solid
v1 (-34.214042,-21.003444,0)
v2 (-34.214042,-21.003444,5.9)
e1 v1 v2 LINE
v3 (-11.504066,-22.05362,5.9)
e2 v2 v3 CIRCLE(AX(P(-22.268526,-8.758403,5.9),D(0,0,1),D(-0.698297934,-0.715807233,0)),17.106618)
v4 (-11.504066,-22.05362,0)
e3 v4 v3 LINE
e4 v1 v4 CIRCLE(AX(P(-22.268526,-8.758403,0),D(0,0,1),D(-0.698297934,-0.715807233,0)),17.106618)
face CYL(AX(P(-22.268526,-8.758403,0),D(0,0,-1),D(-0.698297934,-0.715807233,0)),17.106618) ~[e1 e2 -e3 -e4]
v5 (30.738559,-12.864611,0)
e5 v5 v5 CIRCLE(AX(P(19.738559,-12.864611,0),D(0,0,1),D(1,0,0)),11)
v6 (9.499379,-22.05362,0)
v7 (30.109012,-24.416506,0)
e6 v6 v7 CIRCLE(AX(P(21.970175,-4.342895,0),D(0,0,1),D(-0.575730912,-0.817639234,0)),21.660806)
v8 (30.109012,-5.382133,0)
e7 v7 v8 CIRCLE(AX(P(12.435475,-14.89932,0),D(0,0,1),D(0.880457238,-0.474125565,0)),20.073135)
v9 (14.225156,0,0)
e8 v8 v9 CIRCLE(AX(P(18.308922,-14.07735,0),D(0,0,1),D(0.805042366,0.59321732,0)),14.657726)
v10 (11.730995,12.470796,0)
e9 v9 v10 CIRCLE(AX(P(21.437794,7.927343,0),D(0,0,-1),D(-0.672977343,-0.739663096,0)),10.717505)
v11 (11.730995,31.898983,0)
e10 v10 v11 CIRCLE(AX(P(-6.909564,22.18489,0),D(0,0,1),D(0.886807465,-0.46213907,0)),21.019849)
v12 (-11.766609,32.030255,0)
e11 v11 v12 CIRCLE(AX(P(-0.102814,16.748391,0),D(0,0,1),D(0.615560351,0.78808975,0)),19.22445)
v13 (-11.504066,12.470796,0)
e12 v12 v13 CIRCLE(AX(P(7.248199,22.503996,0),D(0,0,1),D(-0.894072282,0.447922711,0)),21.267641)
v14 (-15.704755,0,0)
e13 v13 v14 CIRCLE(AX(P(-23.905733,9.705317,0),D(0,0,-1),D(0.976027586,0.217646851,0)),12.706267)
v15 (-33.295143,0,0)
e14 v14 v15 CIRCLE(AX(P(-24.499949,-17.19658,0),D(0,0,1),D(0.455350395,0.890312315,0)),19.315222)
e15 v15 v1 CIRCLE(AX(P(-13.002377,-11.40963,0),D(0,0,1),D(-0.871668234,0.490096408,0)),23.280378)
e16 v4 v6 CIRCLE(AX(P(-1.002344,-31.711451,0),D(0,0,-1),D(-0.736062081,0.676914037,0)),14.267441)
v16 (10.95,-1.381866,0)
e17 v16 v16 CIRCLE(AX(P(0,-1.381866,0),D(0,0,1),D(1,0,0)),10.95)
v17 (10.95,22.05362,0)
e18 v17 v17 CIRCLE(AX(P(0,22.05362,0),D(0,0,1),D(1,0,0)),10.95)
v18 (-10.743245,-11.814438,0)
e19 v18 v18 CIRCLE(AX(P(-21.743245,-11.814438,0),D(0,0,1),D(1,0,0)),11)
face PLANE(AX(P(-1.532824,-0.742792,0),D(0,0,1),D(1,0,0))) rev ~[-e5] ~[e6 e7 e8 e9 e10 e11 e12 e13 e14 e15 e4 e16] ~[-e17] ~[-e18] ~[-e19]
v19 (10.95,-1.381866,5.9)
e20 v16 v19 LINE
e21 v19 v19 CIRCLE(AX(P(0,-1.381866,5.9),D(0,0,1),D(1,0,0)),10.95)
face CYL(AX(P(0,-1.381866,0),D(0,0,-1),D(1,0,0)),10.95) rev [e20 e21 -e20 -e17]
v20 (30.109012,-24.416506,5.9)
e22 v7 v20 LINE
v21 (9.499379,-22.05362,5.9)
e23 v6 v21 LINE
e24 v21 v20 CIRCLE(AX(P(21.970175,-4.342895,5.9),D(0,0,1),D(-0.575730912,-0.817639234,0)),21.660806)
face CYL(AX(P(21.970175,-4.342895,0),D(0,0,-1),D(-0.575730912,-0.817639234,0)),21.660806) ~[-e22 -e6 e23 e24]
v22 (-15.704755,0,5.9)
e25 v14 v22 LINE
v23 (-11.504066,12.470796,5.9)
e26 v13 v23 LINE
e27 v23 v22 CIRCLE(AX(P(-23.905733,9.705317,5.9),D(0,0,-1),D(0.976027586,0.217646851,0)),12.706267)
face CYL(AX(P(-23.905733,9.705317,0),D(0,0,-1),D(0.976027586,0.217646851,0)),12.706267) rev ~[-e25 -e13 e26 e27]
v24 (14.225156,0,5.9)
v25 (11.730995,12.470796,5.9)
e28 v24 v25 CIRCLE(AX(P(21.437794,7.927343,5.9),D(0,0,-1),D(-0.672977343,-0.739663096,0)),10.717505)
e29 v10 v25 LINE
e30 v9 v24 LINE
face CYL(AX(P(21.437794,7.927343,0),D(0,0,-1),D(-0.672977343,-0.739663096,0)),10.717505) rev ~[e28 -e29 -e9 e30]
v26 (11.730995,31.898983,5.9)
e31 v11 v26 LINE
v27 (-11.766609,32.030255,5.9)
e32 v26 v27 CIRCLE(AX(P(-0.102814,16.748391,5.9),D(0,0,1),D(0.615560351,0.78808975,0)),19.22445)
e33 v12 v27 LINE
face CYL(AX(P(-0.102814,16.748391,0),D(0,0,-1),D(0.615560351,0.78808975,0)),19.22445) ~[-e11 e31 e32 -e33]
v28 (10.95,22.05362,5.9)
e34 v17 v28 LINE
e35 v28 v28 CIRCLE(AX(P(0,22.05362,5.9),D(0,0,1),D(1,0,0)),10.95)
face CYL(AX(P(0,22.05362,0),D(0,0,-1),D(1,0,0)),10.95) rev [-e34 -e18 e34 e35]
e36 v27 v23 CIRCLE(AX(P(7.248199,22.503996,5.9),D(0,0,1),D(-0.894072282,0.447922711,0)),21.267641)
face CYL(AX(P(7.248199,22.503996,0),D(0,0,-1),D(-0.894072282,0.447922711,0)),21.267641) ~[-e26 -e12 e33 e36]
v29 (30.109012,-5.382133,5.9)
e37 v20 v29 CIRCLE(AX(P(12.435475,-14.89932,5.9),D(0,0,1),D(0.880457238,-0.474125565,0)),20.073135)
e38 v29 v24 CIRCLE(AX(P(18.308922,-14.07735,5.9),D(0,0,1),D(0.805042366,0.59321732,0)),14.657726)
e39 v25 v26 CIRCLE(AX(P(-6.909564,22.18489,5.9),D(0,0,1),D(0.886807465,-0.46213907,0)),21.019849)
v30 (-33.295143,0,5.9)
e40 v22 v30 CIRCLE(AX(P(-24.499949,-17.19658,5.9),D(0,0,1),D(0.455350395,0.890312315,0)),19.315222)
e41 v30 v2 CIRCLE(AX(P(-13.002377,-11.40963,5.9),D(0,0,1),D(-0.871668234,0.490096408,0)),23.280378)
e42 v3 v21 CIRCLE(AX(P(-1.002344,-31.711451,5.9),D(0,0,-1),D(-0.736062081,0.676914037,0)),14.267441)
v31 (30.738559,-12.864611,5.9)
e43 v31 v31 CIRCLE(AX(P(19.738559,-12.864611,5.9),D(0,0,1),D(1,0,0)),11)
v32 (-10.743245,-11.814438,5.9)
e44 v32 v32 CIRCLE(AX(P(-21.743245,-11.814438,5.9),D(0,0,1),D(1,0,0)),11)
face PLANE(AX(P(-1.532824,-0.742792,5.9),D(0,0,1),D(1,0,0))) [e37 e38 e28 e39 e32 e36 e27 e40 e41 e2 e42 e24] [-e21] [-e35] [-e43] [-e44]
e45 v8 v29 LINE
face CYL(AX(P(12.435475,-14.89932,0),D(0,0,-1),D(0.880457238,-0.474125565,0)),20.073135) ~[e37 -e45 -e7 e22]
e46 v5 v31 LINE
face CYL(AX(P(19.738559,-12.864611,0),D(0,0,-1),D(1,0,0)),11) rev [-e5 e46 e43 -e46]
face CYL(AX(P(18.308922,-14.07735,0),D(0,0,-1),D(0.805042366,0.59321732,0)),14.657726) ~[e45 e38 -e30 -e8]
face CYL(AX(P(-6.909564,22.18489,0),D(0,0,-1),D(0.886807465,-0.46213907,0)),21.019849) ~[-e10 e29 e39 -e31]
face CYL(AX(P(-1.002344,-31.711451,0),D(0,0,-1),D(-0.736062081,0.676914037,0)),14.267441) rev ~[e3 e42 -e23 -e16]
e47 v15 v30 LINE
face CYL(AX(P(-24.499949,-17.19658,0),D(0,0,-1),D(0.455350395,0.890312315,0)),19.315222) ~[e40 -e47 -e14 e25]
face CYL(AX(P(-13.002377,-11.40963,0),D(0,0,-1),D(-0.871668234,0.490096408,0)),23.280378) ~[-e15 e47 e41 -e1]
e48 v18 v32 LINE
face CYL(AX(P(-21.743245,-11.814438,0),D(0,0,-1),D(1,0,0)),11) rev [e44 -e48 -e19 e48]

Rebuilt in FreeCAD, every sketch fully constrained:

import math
import FreeCAD as App
import Part
import Sketcher

V = App.Vector
Q = App.Units.Quantity

doc = App.newDocument("Part")
body = doc.addObject("PartDesign::Body", "Body")

sketch1 = doc.addObject("Sketcher::SketchObject", "Sketch")
body.addObject(sketch1)
sketch1.AttachmentSupport = (doc.XY_Plane, [""])
sketch1.MapMode = "FlatFace"
sketch1.addGeometry([
    Part.ArcOfCircle(Part.Circle(V(-6.909564, 22.18489, 0), V(0, 0, 1), 21.019849), math.radians(-27.525224), math.radians(27.525224)),
    Part.ArcOfCircle(Part.Circle(V(-0.102814, 16.748391, 0), V(0, 0, 1), 19.22445), math.radians(52.007352), math.radians(127.352476)),
    Part.ArcOfCircle(Part.Circle(V(7.248199, 22.503996, 0), V(0, 0, 1), 21.267641), math.radians(153.389515), math.radians(208.148534)),
    Part.ArcOfCircle(Part.Circle(V(-23.905733, 9.705317, 0), V(0, 0, 1), 12.706267), math.radians(-49.802241), math.radians(12.570859)),
    Part.ArcOfCircle(Part.Circle(V(-24.499949, -17.19658, 0), V(0, 0, 1), 19.315222), math.radians(62.912518), math.radians(117.087482)),
    Part.ArcOfCircle(Part.Circle(V(-13.002377, -11.40963, 0), V(0, 0, 1), 23.280378), math.radians(150.653082), math.radians(204.336742)),
    Part.ArcOfCircle(Part.Circle(V(-22.268526, -8.758403, 0), V(0, 0, 1), 17.106618), math.radians(-134.290606), math.radians(-51.004672)),
    Part.ArcOfCircle(Part.Circle(V(-1.002344, -31.711451, 0), V(0, 0, 1), 14.267441), math.radians(42.602963), math.radians(137.397037)),
    Part.ArcOfCircle(Part.Circle(V(21.970175, -4.342895, 0), V(0, 0, 1), 21.660806), math.radians(-125.150834), math.radians(-67.929927)),
    Part.ArcOfCircle(Part.Circle(V(12.435475, -14.89932, 0), V(0, 0, 1), 20.073135), math.radians(-28.302431), math.radians(28.302431)),
    Part.ArcOfCircle(Part.Circle(V(18.308922, -14.07735, 0), V(0, 0, 1), 14.657726), math.radians(36.385653), math.radians(106.177169)),
    Part.ArcOfCircle(Part.Circle(V(21.437794, 7.927343, 0), V(0, 0, 1), 10.717505), math.radians(154.917156), math.radians(227.702724)),
    Part.Circle(V(-21.743245, -11.814438, 0), V(0, 0, 1), 11),
    Part.Circle(V(19.738559, -12.864611, 0), V(0, 0, 1), 11),
    Part.Circle(V(0, -1.381866, 0), V(0, 0, 1), 10.95),
    Part.Circle(V(0, 22.05362, 0), V(0, 0, 1), 10.95),
], False)
sketch1.addConstraint([
    Sketcher.Constraint("Coincident", 0, 2, 1, 1),
    Sketcher.Constraint("Coincident", 1, 2, 2, 1),
    Sketcher.Constraint("Coincident", 2, 2, 3, 2),
    Sketcher.Constraint("Coincident", 3, 1, 4, 1),
    Sketcher.Constraint("Coincident", 4, 2, 5, 1),
    Sketcher.Constraint("Coincident", 5, 2, 6, 1),
    Sketcher.Constraint("Coincident", 6, 2, 7, 2),
    Sketcher.Constraint("Coincident", 7, 1, 8, 1),
    Sketcher.Constraint("Coincident", 8, 2, 9, 1),
    Sketcher.Constraint("Coincident", 9, 2, 10, 1),
    Sketcher.Constraint("Coincident", 10, 2, 11, 2),
    Sketcher.Constraint("Coincident", 11, 1, 0, 1),
    Sketcher.Constraint("Equal", 12, 13),
    Sketcher.Constraint("Equal", 14, 15),
    Sketcher.Constraint("PointOnObject", 14, 3, -2),
    Sketcher.Constraint("PointOnObject", 15, 3, -2),
    Sketcher.Constraint("PointOnObject", 3, 1, -1),
    Sketcher.Constraint("PointOnObject", 4, 2, -1),
    Sketcher.Constraint("PointOnObject", 10, 2, -1),
    Sketcher.Constraint("Horizontal", 6, 2, 7, 1),
    Sketcher.Constraint("Horizontal", 2, 2, 11, 1),
    Sketcher.Constraint("Vertical", 2, 2, 6, 2),
    Sketcher.Constraint("Vertical", 8, 2, 9, 2),
    Sketcher.Constraint("Vertical", 0, 2, 11, 1),
    Sketcher.Constraint("Diameter", 12, Q("22 mm")),
    Sketcher.Constraint("Diameter", 14, Q("21.9 mm")),
    Sketcher.Constraint("Radius", 0, Q("21.019849 mm")),
    Sketcher.Constraint("Radius", 1, Q("19.22445 mm")),
    Sketcher.Constraint("Radius", 2, Q("21.267641 mm")),
    Sketcher.Constraint("Radius", 5, Q("23.280378 mm")),
    Sketcher.Constraint("Radius", 6, Q("17.106618 mm")),
    Sketcher.Constraint("Radius", 7, Q("14.267441 mm")),
    Sketcher.Constraint("Radius", 3, Q("12.706267 mm")),
    Sketcher.Constraint("Radius", 4, Q("19.315222 mm")),
    Sketcher.Constraint("Radius", 8, Q("21.660806 mm")),
    Sketcher.Constraint("Radius", 9, Q("20.073135 mm")),
    Sketcher.Constraint("Radius", 10, Q("14.657726 mm")),
    Sketcher.Constraint("Radius", 11, Q("10.717505 mm")),
    Sketcher.Constraint("DistanceX", 6, 3, 9, 3, Q("34.704001 mm")),
    Sketcher.Constraint("DistanceX", -1, 1, 2, 3, Q("7.248199 mm")),
    Sketcher.Constraint("DistanceY", 1, 3, 0, 3, Q("5.436498 mm")),
    Sketcher.Constraint("DistanceX", 9, 3, 8, 3, Q("9.5347 mm")),
    Sketcher.Constraint("DistanceY", 7, 3, 10, 3, Q("17.634102 mm")),
    Sketcher.Constraint("DistanceX", 5, 3, 10, 3, Q("31.311299 mm")),
    Sketcher.Constraint("DistanceX", 12, 3, 7, 3, Q("20.740902 mm")),
    Sketcher.Constraint("DistanceX", 0, 2, 11, 3, Q("9.706799 mm")),
    Sketcher.Constraint("DistanceX", 2, 2, 0, 3, Q("4.594502 mm")),
    Sketcher.Constraint("DistanceX", 5, 2, 4, 2, Q("0.918899 mm")),
    Sketcher.Constraint("DistanceY", 7, 1, 9, 3, Q("7.1543 mm")),
    Sketcher.Constraint("DistanceY", 11, 1, 2, 3, Q("10.0332 mm")),
    Sketcher.Constraint("DistanceY", -1, 1, 0, 3, Q("22.18489 mm")),
    Sketcher.Constraint("DistanceX", 4, 3, -1, 1, Q("24.499949 mm")),
    Sketcher.Constraint("DistanceY", 4, 3, -1, 1, Q("17.19658 mm")),
    Sketcher.Constraint("DistanceY", 5, 3, -1, 1, Q("11.40963 mm")),
    Sketcher.Constraint("DistanceY", 7, 3, -1, 1, Q("31.711451 mm")),
    Sketcher.Constraint("DistanceY", 12, 3, -1, 1, Q("11.814438 mm")),
    Sketcher.Constraint("DistanceX", -1, 1, 13, 3, Q("19.738559 mm")),
    Sketcher.Constraint("DistanceY", 13, 3, -1, 1, Q("12.864611 mm")),
    Sketcher.Constraint("DistanceY", -1, 1, 15, 3, Q("22.05362 mm")),
    Sketcher.Constraint("DistanceY", 8, 3, 14, 3, Q("2.961029 mm")),
])
pad1 = doc.addObject("PartDesign::Pad", "Pad")
body.addObject(pad1)
pad1.Profile = sketch1
pad1.Length = 5.9

doc.recompute()
